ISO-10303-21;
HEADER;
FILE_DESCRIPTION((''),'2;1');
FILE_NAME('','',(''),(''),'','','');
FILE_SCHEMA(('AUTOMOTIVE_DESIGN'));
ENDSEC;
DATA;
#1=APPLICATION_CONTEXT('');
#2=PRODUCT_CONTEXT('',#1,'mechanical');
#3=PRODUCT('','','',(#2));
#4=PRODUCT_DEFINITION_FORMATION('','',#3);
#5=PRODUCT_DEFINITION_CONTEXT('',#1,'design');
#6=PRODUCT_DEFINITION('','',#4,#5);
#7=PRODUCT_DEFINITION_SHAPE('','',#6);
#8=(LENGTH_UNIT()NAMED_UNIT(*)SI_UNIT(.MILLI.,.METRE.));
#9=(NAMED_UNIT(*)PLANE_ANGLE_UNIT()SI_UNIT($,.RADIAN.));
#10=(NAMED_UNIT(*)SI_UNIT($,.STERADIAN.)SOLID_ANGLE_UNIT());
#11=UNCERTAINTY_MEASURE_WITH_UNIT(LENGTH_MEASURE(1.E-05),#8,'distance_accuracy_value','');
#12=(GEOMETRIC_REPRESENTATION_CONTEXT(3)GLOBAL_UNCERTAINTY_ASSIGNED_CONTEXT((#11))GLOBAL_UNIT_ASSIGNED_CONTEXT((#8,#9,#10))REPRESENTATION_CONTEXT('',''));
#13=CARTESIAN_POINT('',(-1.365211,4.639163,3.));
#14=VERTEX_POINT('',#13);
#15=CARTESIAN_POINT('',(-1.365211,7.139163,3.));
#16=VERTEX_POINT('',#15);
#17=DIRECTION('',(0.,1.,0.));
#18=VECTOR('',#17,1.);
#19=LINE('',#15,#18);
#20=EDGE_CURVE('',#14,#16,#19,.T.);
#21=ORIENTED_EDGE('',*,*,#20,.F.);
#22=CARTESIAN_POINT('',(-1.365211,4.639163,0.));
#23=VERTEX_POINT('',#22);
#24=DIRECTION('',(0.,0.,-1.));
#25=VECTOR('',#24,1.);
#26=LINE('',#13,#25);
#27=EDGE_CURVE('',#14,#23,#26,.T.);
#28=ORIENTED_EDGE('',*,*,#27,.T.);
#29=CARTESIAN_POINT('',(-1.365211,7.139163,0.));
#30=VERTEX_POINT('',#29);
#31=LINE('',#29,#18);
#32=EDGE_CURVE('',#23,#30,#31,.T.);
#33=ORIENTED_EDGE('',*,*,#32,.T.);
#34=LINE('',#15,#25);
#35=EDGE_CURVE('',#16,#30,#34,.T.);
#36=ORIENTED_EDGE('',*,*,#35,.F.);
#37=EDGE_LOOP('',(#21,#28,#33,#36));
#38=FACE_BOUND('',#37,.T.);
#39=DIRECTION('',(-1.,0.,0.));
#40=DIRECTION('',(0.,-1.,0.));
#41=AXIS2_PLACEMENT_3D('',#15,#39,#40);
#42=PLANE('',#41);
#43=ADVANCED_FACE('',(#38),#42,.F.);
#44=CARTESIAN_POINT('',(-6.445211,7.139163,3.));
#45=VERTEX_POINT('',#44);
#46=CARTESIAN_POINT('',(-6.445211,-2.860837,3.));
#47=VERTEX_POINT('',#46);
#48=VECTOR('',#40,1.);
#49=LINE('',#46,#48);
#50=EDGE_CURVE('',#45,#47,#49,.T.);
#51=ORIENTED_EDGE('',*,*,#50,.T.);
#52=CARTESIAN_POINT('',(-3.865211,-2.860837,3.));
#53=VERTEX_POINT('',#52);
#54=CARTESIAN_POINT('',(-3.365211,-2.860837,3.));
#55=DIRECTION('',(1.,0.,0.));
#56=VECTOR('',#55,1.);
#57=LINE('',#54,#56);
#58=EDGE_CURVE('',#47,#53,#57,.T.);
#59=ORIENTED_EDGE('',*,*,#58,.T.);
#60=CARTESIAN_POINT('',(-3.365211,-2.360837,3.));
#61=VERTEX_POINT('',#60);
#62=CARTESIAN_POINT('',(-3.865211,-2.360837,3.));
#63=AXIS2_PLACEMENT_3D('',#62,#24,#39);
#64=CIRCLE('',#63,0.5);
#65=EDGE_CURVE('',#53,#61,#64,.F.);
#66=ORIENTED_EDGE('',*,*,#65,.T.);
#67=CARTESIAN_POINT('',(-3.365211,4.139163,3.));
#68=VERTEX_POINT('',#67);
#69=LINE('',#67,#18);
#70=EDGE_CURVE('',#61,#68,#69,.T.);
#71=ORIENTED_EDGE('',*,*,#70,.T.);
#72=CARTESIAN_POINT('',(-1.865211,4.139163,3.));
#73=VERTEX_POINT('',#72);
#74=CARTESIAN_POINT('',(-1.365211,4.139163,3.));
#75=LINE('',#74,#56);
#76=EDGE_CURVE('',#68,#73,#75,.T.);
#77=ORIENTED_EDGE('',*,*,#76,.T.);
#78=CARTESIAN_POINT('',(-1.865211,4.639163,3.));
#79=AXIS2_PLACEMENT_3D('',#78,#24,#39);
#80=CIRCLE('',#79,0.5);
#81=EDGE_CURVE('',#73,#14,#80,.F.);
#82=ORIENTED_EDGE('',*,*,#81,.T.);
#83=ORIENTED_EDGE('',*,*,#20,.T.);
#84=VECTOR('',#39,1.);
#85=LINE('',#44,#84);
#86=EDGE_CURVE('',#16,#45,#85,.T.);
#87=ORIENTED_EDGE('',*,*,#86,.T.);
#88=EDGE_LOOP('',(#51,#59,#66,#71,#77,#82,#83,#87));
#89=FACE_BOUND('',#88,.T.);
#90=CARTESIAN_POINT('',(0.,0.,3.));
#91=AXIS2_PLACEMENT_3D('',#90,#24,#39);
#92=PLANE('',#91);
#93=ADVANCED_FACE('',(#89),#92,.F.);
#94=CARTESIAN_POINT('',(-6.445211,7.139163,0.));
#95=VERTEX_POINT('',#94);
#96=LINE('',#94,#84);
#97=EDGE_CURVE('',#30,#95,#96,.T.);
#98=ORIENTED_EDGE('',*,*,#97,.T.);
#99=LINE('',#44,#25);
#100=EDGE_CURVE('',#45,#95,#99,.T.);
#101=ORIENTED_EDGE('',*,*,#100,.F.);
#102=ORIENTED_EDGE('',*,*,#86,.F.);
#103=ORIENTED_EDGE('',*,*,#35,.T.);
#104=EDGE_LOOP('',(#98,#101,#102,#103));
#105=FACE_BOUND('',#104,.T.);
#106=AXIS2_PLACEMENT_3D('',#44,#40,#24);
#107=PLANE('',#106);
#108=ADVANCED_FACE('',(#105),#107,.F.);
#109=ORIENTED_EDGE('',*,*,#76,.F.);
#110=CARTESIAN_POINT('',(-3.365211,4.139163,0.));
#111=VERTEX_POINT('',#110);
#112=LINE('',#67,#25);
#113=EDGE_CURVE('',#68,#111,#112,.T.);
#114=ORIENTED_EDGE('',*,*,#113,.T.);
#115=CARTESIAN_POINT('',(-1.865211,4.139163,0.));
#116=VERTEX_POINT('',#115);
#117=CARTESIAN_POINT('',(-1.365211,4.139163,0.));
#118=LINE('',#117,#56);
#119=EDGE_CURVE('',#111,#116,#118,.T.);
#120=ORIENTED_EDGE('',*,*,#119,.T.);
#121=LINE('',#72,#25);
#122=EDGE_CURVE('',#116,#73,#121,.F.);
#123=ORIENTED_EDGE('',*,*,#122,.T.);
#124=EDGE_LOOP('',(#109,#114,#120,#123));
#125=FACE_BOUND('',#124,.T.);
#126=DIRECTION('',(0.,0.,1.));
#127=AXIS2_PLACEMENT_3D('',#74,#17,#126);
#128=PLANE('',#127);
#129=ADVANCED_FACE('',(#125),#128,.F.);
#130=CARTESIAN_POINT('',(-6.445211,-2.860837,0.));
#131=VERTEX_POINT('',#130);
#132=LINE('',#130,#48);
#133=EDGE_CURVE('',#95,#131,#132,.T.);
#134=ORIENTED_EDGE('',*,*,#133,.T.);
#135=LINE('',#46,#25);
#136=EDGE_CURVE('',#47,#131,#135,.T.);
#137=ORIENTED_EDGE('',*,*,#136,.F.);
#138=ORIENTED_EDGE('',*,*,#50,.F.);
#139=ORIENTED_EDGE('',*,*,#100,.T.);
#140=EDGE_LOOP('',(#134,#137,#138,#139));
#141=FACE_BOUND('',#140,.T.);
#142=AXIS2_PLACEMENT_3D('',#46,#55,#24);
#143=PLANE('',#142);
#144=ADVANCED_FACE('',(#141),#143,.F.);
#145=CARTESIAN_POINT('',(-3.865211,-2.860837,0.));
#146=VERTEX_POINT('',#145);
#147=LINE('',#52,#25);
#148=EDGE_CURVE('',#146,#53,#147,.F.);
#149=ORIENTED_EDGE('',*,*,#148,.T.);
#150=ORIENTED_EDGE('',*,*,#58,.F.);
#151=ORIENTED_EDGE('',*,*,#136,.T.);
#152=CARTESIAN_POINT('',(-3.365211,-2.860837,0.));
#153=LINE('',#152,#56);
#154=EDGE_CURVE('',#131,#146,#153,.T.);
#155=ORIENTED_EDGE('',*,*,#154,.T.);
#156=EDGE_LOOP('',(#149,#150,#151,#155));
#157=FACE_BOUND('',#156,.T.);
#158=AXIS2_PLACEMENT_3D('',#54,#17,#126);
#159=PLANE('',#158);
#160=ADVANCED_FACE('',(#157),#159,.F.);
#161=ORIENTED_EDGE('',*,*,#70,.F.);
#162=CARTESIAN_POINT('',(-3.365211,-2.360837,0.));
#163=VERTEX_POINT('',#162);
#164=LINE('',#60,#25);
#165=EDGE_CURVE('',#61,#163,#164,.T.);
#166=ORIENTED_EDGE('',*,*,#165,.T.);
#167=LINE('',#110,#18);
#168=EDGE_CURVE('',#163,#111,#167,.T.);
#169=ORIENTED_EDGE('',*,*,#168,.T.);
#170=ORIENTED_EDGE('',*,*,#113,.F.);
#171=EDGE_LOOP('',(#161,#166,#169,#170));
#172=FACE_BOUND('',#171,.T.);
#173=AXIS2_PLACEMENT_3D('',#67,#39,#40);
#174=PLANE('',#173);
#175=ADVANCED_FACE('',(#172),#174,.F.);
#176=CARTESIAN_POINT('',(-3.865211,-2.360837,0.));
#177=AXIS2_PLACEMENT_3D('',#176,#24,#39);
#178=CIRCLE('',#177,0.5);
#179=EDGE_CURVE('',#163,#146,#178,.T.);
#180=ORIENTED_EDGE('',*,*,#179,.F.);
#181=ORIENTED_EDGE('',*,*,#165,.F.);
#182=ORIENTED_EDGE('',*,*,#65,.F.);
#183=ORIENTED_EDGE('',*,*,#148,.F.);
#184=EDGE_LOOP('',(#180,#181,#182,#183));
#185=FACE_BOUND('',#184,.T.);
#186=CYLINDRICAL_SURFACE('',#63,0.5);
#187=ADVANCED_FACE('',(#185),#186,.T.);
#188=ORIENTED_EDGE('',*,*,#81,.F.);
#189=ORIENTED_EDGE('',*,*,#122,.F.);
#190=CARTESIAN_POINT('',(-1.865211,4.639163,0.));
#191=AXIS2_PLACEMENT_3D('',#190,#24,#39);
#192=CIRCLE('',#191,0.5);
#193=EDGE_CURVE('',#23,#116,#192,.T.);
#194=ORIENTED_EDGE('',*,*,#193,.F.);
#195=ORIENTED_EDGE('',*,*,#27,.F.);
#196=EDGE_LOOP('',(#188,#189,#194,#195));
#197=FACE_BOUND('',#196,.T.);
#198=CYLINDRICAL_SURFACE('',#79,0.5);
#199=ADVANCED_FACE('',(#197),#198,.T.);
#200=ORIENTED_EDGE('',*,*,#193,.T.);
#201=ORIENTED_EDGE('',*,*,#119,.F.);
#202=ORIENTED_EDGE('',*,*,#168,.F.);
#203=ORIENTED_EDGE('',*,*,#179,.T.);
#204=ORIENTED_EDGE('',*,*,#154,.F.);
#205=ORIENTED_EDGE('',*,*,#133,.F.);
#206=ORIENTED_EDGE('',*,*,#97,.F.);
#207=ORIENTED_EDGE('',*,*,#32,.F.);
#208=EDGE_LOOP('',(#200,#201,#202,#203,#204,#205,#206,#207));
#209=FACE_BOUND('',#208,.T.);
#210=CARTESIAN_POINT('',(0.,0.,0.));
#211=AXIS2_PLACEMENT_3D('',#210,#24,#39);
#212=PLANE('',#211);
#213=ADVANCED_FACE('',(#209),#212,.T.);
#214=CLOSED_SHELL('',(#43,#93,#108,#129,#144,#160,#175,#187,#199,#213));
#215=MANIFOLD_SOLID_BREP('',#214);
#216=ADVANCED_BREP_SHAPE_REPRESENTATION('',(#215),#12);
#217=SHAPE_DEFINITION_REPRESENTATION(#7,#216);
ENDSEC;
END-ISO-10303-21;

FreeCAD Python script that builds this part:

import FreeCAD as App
import Part
import Sketcher
from FreeCAD import Vector


def edges_at(feature, points):
    """Names of the edges that pass closest to the given points."""
    edges = feature.Shape.Edges
    near = lambda p: min(range(len(edges)), key=lambda i: edges[i].distToShape(Part.Vertex(*p))[0])
    return sorted({f"Edge{near(p) + 1}" for p in points})


def add_polygon(sketch, points):
    """Adds a closed chain of lines whose ends are joined by coincident constraints."""
    first, n = sketch.GeometryCount, len(points)
    for a, b in zip(points, points[1:] + points[:1]):
        sketch.addGeometry(Part.LineSegment(App.Vector(*a, 0), App.Vector(*b, 0)), False)
    for i in range(n):
        sketch.addConstraint(Sketcher.Constraint("Coincident", first + i, 2, first + (i + 1) % n, 1))

doc = App.newDocument("Part")
body = doc.addObject("PartDesign::Body", "Body")

# Sketch on XY plane
sketch1 = doc.addObject("Sketcher::SketchObject", "Sketch")
body.addObject(sketch1)
sketch1.AttachmentSupport = (doc.XY_Plane, [""])
sketch1.MapMode = "FlatFace"
add_polygon(sketch1, [(-1.4, 7.1), (-6.4, 7.1), (-6.4, -2.9), (-3.4, -2.9), (-3.4, 4.1), (-1.4, 4.1)])  # lines 0-5
sketch1.addConstraint([
    Sketcher.Constraint("Horizontal", 0),
    Sketcher.Constraint("Vertical", 1),
    Sketcher.Constraint("Horizontal", 2),
    Sketcher.Constraint("Vertical", 3),
    Sketcher.Constraint("Horizontal", 4),
    Sketcher.Constraint("Vertical", 5),
    Sketcher.Constraint("DistanceX", 4, 1, 4, 2, 2.0),
    Sketcher.Constraint("DistanceY", 1, 2, 1, 1, 10.0),
    Sketcher.Constraint("DistanceY", 3, 1, 3, 2, 7.0),
    Sketcher.Constraint("DistanceX", 0, 2, 0, 1, 5.08),
    Sketcher.Constraint("DistanceX", 0, 2, -1, 1, 6.445211),
    Sketcher.Constraint("DistanceY", -1, 1, 0, 2, 7.139163),
])
pad1 = doc.addObject("PartDesign::Pad", "Pad")
body.addObject(pad1)
pad1.Profile = sketch1
pad1.Length = 3
doc.recompute()

fillet = doc.addObject("PartDesign::Fillet", "Fillet")
body.addObject(fillet)
fillet.Base = (pad1, edges_at(pad1, [(-3.365, -2.861, 1.5)]))
fillet.Radius = 0.5
doc.recompute()

fillet2 = doc.addObject("PartDesign::Fillet", "Fillet001")
body.addObject(fillet2)
fillet2.Base = (fillet, edges_at(fillet, [(-1.365, 4.139, 1.5)]))
fillet2.Radius = 0.5

doc.recompute()
